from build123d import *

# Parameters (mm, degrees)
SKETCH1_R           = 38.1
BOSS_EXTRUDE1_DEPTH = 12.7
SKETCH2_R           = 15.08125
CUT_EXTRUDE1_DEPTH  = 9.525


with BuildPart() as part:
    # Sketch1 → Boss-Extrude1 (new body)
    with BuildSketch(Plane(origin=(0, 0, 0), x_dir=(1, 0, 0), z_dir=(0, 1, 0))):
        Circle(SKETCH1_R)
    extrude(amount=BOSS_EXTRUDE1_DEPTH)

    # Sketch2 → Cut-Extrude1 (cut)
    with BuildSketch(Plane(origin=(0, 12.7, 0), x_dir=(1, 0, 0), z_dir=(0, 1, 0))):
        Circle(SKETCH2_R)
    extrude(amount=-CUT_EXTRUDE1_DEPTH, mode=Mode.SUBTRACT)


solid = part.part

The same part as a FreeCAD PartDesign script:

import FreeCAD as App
import Part
import Sketcher
Q = App.Units.Quantity

doc = App.newDocument("Part")
body = doc.addObject("PartDesign::Body", "Body")

sketch1 = body.newObject("Sketcher::SketchObject", "Sketch")
sketch1.AttachmentSupport = (doc.getObject("XZ_Plane"), [""])
sketch1.MapMode = "FlatFace"
sketch1.addGeometry(Part.Circle(App.Vector(0, 0, 0), App.Vector(0, 0, 1), 38), False)
sketch1.addConstraint([
    Sketcher.Constraint("Coincident", 0, 3, -1, 1),
    Sketcher.Constraint("Diameter", 0, Q("3 in")),
])
pad1 = body.newObject("PartDesign::Pad", "Pad")
pad1.Profile = sketch1
pad1.Length = Q("0.5 in")
pad1.Reversed = True

sketch2 = body.newObject("Sketcher::SketchObject", "Sketch001")
sketch2.AttachmentSupport = (doc.getObject("XZ_Plane"), [""])
sketch2.MapMode = "FlatFace"
sketch2.AttachmentOffset = App.Placement(App.Vector(0, 0, -0.5 * 25.4), App.Rotation())
sketch2.addGeometry(Part.Circle(App.Vector(0, 0, 0), App.Vector(0, 0, 1), 15), False)
sketch2.addConstraint([
    Sketcher.Constraint("Coincident", 0, 3, -1, 1),
    Sketcher.Constraint("Diameter", 0, Q("1.1875 in")),
])
pocket1 = body.newObject("PartDesign::Pocket", "Pocket")
pocket1.Profile = sketch2
pocket1.Length = Q("0.375 in")
pocket1.Reversed = True

doc.recompute()
